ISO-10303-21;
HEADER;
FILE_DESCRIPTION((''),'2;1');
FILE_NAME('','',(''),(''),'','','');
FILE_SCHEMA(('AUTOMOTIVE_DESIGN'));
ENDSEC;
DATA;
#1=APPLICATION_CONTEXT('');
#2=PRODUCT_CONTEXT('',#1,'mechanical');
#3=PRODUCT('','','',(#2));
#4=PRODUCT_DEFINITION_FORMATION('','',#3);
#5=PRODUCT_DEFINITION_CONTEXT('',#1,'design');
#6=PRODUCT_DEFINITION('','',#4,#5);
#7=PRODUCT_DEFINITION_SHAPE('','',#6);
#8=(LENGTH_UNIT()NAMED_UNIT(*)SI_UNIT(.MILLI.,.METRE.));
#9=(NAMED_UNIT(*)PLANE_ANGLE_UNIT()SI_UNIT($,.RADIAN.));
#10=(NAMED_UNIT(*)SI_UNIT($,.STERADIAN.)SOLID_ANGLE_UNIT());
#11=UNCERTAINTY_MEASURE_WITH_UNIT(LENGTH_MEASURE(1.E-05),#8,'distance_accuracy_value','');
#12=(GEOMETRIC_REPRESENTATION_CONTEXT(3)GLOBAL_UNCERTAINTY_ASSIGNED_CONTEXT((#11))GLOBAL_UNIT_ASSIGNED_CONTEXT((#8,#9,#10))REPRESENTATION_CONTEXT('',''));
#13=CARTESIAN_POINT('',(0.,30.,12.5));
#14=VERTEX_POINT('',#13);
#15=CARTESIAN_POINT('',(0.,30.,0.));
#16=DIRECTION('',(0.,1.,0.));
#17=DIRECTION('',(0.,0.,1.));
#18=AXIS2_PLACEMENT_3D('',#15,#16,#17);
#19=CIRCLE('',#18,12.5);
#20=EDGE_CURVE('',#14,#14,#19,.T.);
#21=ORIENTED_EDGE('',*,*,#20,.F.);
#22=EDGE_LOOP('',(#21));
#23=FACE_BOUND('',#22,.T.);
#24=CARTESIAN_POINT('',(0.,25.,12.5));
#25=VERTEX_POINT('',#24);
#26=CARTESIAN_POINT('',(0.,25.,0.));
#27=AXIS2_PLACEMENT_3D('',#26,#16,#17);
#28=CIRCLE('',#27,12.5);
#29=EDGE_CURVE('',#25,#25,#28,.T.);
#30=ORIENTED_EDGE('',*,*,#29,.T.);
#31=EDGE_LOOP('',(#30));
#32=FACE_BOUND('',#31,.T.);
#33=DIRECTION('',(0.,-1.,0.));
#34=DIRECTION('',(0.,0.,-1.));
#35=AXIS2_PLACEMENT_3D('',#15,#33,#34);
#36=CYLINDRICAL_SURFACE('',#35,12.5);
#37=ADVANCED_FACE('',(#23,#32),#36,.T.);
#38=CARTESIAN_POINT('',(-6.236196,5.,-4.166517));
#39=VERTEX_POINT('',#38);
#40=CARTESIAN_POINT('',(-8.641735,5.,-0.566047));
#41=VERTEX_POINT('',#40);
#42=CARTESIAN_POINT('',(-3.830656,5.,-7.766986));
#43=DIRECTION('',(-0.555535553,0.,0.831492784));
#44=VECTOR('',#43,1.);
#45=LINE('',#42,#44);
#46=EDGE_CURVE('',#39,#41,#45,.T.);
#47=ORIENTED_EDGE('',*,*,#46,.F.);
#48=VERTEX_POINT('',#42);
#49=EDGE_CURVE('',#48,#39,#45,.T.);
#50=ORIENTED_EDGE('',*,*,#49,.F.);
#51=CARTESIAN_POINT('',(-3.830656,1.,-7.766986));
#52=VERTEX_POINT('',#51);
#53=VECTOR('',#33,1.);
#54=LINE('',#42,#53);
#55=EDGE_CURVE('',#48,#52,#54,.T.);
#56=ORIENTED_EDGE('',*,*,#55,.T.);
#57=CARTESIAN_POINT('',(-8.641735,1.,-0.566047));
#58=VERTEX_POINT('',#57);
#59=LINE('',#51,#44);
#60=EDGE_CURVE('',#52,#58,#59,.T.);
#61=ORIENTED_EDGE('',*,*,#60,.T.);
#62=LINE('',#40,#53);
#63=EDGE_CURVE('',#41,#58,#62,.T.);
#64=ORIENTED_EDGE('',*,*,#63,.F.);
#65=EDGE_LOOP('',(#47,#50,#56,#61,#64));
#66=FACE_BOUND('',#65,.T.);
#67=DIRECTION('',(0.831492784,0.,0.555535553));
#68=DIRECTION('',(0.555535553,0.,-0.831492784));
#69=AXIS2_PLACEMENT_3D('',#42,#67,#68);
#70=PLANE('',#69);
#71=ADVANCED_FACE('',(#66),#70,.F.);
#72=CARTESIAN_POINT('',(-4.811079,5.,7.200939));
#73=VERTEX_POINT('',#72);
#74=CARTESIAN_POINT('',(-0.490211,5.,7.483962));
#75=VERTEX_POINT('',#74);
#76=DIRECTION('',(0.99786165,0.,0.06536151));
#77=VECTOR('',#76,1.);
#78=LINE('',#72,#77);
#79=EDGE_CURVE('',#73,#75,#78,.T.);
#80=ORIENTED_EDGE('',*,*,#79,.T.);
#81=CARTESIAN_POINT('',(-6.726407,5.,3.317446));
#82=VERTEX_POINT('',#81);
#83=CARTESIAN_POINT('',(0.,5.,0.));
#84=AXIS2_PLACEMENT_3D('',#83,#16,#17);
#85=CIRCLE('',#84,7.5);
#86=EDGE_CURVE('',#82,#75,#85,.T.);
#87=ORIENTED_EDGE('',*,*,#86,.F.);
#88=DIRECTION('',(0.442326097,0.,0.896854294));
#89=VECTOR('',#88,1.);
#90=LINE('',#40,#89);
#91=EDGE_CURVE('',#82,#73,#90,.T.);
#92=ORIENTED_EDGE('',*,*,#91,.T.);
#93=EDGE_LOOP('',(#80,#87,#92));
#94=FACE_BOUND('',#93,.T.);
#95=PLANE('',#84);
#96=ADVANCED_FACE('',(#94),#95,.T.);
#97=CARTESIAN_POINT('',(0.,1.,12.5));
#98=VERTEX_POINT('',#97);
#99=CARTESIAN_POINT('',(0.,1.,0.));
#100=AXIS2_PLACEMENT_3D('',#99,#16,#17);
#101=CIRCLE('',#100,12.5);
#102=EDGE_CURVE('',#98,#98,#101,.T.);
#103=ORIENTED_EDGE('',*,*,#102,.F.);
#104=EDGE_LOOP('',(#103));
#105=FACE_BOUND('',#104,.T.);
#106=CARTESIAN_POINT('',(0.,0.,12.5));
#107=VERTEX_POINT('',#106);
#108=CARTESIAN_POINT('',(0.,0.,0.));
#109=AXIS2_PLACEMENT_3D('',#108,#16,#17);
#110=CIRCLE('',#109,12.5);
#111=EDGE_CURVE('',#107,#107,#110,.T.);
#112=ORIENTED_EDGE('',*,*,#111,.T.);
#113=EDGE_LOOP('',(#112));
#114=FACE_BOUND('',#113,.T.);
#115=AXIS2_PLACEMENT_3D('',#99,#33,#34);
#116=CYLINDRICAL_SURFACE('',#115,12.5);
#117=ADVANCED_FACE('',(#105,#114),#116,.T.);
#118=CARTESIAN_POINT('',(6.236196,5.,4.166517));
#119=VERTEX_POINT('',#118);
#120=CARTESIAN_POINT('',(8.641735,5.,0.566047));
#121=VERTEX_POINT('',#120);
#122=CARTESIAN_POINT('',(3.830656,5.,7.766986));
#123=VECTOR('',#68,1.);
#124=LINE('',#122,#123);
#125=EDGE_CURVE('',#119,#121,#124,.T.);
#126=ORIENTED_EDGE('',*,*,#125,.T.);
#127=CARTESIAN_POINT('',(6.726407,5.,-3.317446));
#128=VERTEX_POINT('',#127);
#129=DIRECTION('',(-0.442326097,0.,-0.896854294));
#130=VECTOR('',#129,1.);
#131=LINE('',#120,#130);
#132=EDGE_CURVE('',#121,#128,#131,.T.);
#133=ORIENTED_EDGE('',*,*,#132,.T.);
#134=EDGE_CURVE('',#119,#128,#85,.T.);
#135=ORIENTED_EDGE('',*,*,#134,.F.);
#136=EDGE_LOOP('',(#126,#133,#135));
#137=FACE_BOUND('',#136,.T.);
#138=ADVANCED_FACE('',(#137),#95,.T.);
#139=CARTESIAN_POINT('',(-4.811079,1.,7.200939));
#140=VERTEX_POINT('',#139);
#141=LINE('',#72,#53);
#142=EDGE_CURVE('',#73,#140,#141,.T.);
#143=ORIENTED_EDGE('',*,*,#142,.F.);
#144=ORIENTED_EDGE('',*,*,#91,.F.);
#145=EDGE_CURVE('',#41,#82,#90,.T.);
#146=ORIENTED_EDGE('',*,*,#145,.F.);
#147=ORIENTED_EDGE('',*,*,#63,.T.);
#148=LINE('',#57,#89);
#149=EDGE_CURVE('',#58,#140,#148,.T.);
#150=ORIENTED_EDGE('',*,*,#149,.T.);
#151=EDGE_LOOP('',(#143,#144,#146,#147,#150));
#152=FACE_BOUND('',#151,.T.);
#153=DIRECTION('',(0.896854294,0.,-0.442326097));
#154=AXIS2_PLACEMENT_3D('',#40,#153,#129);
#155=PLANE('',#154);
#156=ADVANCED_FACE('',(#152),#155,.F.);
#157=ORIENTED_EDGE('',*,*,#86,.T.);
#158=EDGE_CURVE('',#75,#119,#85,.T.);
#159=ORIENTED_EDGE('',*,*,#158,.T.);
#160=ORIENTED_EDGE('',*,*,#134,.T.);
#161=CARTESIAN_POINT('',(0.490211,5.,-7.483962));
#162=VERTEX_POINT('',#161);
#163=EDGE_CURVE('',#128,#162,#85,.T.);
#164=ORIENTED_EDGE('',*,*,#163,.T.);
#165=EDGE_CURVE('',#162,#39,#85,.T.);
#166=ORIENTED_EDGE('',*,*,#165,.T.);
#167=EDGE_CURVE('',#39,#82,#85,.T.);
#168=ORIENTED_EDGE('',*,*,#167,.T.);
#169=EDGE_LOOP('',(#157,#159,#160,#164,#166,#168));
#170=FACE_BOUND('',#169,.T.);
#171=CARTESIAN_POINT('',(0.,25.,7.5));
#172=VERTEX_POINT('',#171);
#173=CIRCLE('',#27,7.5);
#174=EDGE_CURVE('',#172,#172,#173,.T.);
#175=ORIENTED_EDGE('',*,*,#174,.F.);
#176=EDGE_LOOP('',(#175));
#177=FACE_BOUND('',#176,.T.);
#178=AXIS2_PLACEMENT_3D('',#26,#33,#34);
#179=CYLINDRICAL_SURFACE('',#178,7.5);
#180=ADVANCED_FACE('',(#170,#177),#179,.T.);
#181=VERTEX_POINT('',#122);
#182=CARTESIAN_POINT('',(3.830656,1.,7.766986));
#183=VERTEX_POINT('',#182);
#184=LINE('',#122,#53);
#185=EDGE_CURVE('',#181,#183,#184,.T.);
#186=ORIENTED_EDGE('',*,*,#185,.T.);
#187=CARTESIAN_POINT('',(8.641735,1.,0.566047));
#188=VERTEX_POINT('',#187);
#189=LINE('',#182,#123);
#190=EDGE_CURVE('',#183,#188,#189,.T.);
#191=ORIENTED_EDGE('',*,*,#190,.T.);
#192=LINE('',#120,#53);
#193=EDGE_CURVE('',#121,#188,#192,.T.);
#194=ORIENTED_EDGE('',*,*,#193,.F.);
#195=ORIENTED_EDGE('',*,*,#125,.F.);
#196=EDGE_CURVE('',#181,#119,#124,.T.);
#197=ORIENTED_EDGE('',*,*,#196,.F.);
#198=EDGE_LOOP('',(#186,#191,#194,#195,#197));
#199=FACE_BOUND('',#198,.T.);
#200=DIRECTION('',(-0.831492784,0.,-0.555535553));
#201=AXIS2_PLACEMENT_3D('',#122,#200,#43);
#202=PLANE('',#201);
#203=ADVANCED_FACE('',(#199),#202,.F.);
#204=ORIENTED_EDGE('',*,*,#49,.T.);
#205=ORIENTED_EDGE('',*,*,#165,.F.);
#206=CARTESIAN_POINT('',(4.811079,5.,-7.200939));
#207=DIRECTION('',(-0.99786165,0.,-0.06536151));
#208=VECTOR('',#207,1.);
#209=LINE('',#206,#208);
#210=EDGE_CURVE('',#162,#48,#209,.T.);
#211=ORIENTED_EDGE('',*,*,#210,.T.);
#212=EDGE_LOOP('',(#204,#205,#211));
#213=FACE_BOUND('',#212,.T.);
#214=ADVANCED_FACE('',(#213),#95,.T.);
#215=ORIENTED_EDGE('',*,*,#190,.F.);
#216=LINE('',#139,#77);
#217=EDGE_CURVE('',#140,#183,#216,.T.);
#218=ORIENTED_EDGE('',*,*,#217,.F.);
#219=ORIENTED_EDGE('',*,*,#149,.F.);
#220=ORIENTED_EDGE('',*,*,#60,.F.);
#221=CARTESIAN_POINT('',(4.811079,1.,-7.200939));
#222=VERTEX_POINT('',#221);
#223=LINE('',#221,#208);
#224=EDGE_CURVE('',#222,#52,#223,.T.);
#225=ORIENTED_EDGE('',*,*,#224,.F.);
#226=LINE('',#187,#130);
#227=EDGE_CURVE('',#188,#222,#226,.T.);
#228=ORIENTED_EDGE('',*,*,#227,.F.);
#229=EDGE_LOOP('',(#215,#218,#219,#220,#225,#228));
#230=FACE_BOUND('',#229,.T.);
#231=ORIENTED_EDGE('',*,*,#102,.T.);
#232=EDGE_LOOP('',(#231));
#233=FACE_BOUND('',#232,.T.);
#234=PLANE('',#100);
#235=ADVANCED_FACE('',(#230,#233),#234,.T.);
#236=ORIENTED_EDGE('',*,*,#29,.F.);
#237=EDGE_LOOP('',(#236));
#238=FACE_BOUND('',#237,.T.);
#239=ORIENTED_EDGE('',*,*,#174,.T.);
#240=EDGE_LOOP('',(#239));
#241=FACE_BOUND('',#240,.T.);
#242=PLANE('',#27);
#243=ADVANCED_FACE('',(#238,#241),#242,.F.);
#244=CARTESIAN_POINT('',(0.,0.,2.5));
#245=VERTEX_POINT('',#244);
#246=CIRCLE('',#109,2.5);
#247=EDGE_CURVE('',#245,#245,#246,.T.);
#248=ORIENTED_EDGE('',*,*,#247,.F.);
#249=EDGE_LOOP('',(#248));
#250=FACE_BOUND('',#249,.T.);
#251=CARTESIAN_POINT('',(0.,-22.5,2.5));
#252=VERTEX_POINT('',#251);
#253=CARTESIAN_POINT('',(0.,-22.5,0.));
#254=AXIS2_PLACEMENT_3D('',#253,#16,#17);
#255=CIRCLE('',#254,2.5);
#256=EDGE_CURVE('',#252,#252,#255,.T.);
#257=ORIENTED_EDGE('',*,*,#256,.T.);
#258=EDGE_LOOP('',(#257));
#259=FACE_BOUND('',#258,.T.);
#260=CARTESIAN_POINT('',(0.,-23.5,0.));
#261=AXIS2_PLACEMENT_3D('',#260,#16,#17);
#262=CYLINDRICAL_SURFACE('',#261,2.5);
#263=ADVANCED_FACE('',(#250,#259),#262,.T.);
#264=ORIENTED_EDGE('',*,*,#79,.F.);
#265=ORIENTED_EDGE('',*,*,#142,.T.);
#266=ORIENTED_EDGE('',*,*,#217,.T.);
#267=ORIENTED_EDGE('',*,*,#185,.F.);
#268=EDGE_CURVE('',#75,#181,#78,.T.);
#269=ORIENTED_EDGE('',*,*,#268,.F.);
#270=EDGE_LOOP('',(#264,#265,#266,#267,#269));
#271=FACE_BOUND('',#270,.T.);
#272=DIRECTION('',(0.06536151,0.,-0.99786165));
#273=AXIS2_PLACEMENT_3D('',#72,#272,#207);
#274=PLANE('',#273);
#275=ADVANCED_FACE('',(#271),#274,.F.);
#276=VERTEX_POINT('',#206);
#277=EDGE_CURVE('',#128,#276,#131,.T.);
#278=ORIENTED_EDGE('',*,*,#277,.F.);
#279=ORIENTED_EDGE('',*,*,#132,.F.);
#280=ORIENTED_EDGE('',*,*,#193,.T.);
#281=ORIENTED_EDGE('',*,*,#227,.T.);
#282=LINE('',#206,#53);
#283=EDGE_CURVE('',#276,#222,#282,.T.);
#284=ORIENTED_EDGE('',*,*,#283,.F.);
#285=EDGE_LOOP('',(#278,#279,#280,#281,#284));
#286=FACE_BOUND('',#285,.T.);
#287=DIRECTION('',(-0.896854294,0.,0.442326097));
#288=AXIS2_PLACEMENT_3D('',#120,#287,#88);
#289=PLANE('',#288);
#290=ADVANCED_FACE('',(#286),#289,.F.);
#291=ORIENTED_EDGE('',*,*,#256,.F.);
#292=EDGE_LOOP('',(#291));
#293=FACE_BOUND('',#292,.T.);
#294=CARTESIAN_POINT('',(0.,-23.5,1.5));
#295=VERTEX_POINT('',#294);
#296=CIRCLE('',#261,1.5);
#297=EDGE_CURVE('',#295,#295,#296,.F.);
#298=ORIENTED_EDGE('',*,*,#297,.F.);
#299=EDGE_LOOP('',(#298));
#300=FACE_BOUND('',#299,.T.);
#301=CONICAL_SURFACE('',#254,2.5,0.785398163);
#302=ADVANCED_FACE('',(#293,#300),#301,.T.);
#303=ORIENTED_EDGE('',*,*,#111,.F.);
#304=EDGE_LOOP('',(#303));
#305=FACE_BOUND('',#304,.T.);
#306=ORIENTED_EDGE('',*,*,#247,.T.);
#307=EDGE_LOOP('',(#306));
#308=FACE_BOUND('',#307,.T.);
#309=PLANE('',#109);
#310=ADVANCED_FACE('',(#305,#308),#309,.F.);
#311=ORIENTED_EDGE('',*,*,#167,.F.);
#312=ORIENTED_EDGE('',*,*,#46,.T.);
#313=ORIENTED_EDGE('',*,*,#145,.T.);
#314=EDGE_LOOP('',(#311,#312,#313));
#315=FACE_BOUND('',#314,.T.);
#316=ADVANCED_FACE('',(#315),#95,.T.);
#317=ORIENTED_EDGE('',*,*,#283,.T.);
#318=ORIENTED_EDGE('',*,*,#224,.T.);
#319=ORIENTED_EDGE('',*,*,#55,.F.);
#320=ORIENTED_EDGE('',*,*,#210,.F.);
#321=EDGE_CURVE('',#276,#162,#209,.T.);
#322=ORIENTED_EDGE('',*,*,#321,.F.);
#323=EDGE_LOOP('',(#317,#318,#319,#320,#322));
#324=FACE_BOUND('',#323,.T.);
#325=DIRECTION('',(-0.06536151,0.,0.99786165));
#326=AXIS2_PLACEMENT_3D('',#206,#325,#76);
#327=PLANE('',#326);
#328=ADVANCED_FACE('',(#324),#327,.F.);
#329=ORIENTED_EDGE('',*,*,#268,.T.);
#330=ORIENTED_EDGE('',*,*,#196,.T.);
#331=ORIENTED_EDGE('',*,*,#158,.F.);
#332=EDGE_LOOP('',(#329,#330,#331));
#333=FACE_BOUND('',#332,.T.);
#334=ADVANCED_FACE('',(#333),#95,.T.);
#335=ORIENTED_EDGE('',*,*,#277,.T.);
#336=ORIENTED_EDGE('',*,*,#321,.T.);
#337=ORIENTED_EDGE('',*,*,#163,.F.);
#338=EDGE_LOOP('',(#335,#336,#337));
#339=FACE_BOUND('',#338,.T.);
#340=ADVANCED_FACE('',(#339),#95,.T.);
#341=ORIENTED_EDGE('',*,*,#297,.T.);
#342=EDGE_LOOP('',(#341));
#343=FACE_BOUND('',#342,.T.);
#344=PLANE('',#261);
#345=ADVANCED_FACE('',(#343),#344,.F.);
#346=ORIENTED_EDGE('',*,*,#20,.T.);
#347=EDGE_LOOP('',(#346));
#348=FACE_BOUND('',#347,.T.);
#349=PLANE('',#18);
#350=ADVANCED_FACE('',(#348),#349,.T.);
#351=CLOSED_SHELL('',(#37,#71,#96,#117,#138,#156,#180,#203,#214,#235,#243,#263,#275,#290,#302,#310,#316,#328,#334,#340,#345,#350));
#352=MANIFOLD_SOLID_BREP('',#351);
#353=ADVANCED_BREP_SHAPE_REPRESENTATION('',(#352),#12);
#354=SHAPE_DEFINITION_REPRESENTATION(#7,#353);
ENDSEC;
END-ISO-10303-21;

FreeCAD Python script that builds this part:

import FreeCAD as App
import Part
import Sketcher
from FreeCAD import Vector


def edges_at(feature, points):
    """Names of the edges that pass closest to the given points."""
    edges = feature.Shape.Edges
    near = lambda p: min(range(len(edges)), key=lambda i: edges[i].distToShape(Part.Vertex(*p))[0])
    return sorted({f"Edge{near(p) + 1}" for p in points})

doc = App.newDocument("Part")
body = doc.addObject("PartDesign::Body", "Body")

sketch1 = body.newObject("Sketcher::SketchObject", "Sketch")
sketch1.AttachmentSupport = (doc.getObject("XZ_Plane"), [""])
sketch1.MapMode = "FlatFace"
sketch1.addGeometry(Part.Circle(Vector(0, 0, 0), Vector(0, 0, 1), 12), False)
sketch1.addConstraint(Sketcher.Constraint("Coincident", 0, 3, -1, 1))
sketch1.addConstraint(Sketcher.Constraint("Diameter", 0, 25.0))
pad1 = body.newObject("PartDesign::Pad", "Pad")
pad1.Profile = sketch1
pad1.Length = 1
pad1.Reversed = True

sketch2 = body.newObject("Sketcher::SketchObject", "Sketch001")
sketch2.AttachmentSupport = (doc.getObject("XZ_Plane"), [""])
sketch2.MapMode = "FlatFace"
sketch2.AttachmentOffset = App.Placement(Vector(0, 0, -1), App.Rotation())
sketch2.addGeometry(Part.LineSegment(Vector(4, 8, 0), Vector(9, 1, 0)), False)
sketch2.addGeometry(Part.LineSegment(Vector(9, 1, 0), Vector(5, -7, 0)), False)
sketch2.addGeometry(Part.LineSegment(Vector(5, -7, 0), Vector(-4, -8, 0)), False)
sketch2.addGeometry(Part.LineSegment(Vector(-4, -8, 0), Vector(-9, -1, 0)), False)
sketch2.addGeometry(Part.LineSegment(Vector(-9, -1, 0), Vector(-5, 7, 0)), False)
sketch2.addGeometry(Part.LineSegment(Vector(-5, 7, 0), Vector(4, 8, 0)), False)
sketch2.addConstraint(Sketcher.Constraint("Coincident", 0, 2, 1, 1))
sketch2.addConstraint(Sketcher.Constraint("Coincident", 1, 2, 2, 1))
sketch2.addConstraint(Sketcher.Constraint("Coincident", 2, 2, 3, 1))
sketch2.addConstraint(Sketcher.Constraint("Coincident", 3, 2, 4, 1))
sketch2.addConstraint(Sketcher.Constraint("Coincident", 4, 2, 5, 1))
sketch2.addConstraint(Sketcher.Constraint("Coincident", 5, 2, 0, 1))
sketch2.addConstraint(Sketcher.Constraint("Symmetric", 0, 2, 3, 2, -1, 1))
sketch2.addConstraint(Sketcher.Constraint("Symmetric", 1, 2, 4, 2, -1, 1))
sketch2.addConstraint(Sketcher.Constraint("Symmetric", 2, 2, 5, 2, -1, 1))
sketch2.addConstraint(Sketcher.Constraint("Equal", 0, 1))
sketch2.addConstraint(Sketcher.Constraint("Equal", 1, 2))
sketch2.addConstraint(Sketcher.Constraint("DistanceX", -1, 1, 1, 2, 4.811079))
sketch2.addConstraint(Sketcher.Constraint("DistanceY", 1, 2, -1, 1, 7.200939))
sketch2.addConstraint(Sketcher.Constraint("DistanceX", 2, 2, 0, 2, 12.472392))
sketch2.addConstraint(Sketcher.Constraint("DistanceX", 3, 2, 2, 2, 4.811079))
pad2 = body.newObject("PartDesign::Pad", "Pad001")
pad2.Profile = sketch2
pad2.Length = 4
pad2.Reversed = True

sketch3 = body.newObject("Sketcher::SketchObject", "Sketch002")
sketch3.AttachmentSupport = (doc.getObject("XZ_Plane"), [""])
sketch3.MapMode = "FlatFace"
sketch3.AttachmentOffset = App.Placement(Vector(0, 0, -5), App.Rotation())
sketch3.addGeometry(Part.Circle(Vector(0, 0, 0), Vector(0, 0, 1), 2.5), False)
sketch3.addConstraint(Sketcher.Constraint("Coincident", 0, 3, -1, 1))
sketch3.addConstraint(Sketcher.Constraint("Diameter", 0, 5.0))
pad3 = body.newObject("PartDesign::Pad", "Pad002")
pad3.Profile = sketch3
pad3.Length = 28.5
doc.recompute()

chamfer = body.newObject("PartDesign::Chamfer", "Chamfer")
chamfer.Base = (pad3, edges_at(pad3, [(-2.5, -23.5, 0)]))
chamfer.Size = 1

sketch4 = body.newObject("Sketcher::SketchObject", "Sketch003")
sketch4.AttachmentSupport = (doc.getObject("XZ_Plane"), [""])
sketch4.MapMode = "FlatFace"
sketch4.AttachmentOffset = App.Placement(Vector(0, 0, -5), App.Rotation())
sketch4.addGeometry(Part.Circle(Vector(0, 0, 0), Vector(0, 0, 1), 8), False)
sketch4.addConstraint(Sketcher.Constraint("Coincident", 0, 3, -1, 1))
sketch4.addConstraint(Sketcher.Constraint("Diameter", 0, 15.0))
pad4 = body.newObject("PartDesign::Pad", "Pad003")
pad4.Profile = sketch4
pad4.Length = 20
pad4.Reversed = True

sketch5 = body.newObject("Sketcher::SketchObject", "Sketch004")
sketch5.AttachmentSupport = (doc.getObject("XZ_Plane"), [""])
sketch5.MapMode = "FlatFace"
sketch5.AttachmentOffset = App.Placement(Vector(0, 0, -25), App.Rotation())
sketch5.addGeometry(Part.Circle(Vector(0, 0, 0), Vector(0, 0, 1), 12), False)
sketch5.addConstraint(Sketcher.Constraint("Coincident", 0, 3, -1, 1))
sketch5.addConstraint(Sketcher.Constraint("Diameter", 0, 25.0))
pad5 = body.newObject("PartDesign::Pad", "Pad004")
pad5.Profile = sketch5
pad5.Length = 5
pad5.Reversed = True

doc.recompute()
